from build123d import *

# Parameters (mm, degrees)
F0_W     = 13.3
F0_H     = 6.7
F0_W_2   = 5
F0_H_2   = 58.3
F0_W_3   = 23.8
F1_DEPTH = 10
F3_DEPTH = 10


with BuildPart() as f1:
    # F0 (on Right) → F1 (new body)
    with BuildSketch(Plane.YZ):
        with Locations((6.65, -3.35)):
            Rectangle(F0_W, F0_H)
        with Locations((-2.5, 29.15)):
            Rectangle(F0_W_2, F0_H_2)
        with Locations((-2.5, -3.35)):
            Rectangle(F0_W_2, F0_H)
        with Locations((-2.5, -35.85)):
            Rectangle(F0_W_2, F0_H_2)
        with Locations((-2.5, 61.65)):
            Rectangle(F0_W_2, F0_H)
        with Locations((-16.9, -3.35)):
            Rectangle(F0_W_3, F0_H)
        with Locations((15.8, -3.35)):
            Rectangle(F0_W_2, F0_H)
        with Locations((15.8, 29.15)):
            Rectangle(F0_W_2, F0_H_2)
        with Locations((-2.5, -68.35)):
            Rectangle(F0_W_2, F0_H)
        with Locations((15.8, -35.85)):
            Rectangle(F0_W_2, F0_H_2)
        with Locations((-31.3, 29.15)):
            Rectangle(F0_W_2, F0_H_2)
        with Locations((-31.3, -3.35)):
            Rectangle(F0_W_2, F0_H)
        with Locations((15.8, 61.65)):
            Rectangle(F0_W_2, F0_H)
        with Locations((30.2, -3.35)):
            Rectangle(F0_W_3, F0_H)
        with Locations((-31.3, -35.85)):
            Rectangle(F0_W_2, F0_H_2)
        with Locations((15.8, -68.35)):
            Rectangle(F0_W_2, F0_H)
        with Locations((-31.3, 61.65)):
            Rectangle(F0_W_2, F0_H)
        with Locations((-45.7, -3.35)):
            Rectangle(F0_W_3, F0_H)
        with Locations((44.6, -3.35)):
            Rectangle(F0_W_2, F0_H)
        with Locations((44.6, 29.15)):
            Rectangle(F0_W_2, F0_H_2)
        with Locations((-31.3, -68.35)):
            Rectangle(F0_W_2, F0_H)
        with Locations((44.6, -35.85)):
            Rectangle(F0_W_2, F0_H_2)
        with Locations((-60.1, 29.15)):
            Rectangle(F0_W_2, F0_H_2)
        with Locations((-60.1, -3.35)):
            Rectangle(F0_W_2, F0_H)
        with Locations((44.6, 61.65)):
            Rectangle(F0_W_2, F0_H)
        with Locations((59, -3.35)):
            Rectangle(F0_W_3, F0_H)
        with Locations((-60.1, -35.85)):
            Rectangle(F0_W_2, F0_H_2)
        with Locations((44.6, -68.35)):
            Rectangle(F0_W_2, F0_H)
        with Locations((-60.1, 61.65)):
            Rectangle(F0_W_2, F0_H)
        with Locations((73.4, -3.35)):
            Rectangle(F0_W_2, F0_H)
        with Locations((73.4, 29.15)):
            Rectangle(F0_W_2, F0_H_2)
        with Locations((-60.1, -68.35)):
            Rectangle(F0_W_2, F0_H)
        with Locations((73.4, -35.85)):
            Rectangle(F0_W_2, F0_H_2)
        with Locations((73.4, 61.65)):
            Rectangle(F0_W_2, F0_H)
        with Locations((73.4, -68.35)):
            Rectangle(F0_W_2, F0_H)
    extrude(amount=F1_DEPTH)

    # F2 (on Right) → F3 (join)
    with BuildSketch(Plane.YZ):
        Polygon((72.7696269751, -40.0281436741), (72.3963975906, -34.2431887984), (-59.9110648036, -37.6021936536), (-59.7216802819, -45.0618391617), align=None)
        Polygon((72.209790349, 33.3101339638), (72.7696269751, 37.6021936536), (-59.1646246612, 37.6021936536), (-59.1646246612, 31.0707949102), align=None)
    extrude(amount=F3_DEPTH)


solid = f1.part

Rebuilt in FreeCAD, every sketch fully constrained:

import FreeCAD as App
import Part
import Sketcher
from FreeCAD import Vector

doc = App.newDocument("Part")
body = doc.addObject("PartDesign::Body", "Body")

# Sketch on YZ plane
sketch1 = body.newObject("Sketcher::SketchObject", "Sketch")
sketch1.AttachmentSupport = (doc.getObject("YZ_Plane"), [""])
sketch1.MapMode = "FlatFace"
sketch1.addGeometry(Part.LineSegment(Vector(0, 0, 0), Vector(0, 65, 0)), False)
sketch1.addGeometry(Part.LineSegment(Vector(0, 65, 0), Vector(-5, 65, 0)), False)
sketch1.addGeometry(Part.LineSegment(Vector(-5, 65, 0), Vector(-5, 0, 0)), False)
sketch1.addGeometry(Part.LineSegment(Vector(-5, 0, 0), Vector(-28.8, 0, 0)), False)
sketch1.addGeometry(Part.LineSegment(Vector(-28.8, 0, 0), Vector(-28.8, 65, 0)), False)
sketch1.addGeometry(Part.LineSegment(Vector(-28.8, 65, 0), Vector(-33.8, 65, 0)), False)
sketch1.addGeometry(Part.LineSegment(Vector(-33.8, 65, 0), Vector(-33.8, 0, 0)), False)
sketch1.addGeometry(Part.LineSegment(Vector(-33.8, 0, 0), Vector(-57.6, 0, 0)), False)
sketch1.addGeometry(Part.LineSegment(Vector(-57.6, 0, 0), Vector(-57.6, 65, 0)), False)
sketch1.addGeometry(Part.LineSegment(Vector(-57.6, 65, 0), Vector(-62.6, 65, 0)), False)
sketch1.addGeometry(Part.LineSegment(Vector(-62.6, 65, 0), Vector(-62.6, -71.7, 0)), False)
sketch1.addGeometry(Part.LineSegment(Vector(-62.6, -71.7, 0), Vector(-57.6, -71.7, 0)), False)
sketch1.addGeometry(Part.LineSegment(Vector(-57.6, -71.7, 0), Vector(-57.6, -6.7, 0)), False)
sketch1.addGeometry(Part.LineSegment(Vector(-57.6, -6.7, 0), Vector(-33.8, -6.7, 0)), False)
sketch1.addGeometry(Part.LineSegment(Vector(-33.8, -6.7, 0), Vector(-33.8, -71.7, 0)), False)
sketch1.addGeometry(Part.LineSegment(Vector(-33.8, -71.7, 0), Vector(-28.8, -71.7, 0)), False)
sketch1.addGeometry(Part.LineSegment(Vector(-28.8, -71.7, 0), Vector(-28.8, -6.7, 0)), False)
sketch1.addGeometry(Part.LineSegment(Vector(-28.8, -6.7, 0), Vector(-5, -6.7, 0)), False)
sketch1.addGeometry(Part.LineSegment(Vector(-5, -6.7, 0), Vector(-5, -71.7, 0)), False)
sketch1.addGeometry(Part.LineSegment(Vector(-5, -71.7, 0), Vector(0, -71.7, 0)), False)
sketch1.addGeometry(Part.LineSegment(Vector(0, -71.7, 0), Vector(0, -6.7, 0)), False)
sketch1.addGeometry(Part.LineSegment(Vector(0, -6.7, 0), Vector(13.3, -6.7, 0)), False)
sketch1.addGeometry(Part.LineSegment(Vector(13.3, -6.7, 0), Vector(13.3, -71.7, 0)), False)
sketch1.addGeometry(Part.LineSegment(Vector(13.3, -71.7, 0), Vector(18.3, -71.7, 0)), False)
sketch1.addGeometry(Part.LineSegment(Vector(18.3, -71.7, 0), Vector(18.3, -6.7, 0)), False)
sketch1.addGeometry(Part.LineSegment(Vector(18.3, -6.7, 0), Vector(42.1, -6.7, 0)), False)
sketch1.addGeometry(Part.LineSegment(Vector(42.1, -6.7, 0), Vector(42.1, -71.7, 0)), False)
sketch1.addGeometry(Part.LineSegment(Vector(42.1, -71.7, 0), Vector(47.1, -71.7, 0)), False)
sketch1.addGeometry(Part.LineSegment(Vector(47.1, -71.7, 0), Vector(47.1, -6.7, 0)), False)
sketch1.addGeometry(Part.LineSegment(Vector(47.1, -6.7, 0), Vector(70.9, -6.7, 0)), False)
sketch1.addGeometry(Part.LineSegment(Vector(70.9, -6.7, 0), Vector(70.9, -71.7, 0)), False)
sketch1.addGeometry(Part.LineSegment(Vector(70.9, -71.7, 0), Vector(75.9, -71.7, 0)), False)
sketch1.addGeometry(Part.LineSegment(Vector(75.9, -71.7, 0), Vector(75.9, 65, 0)), False)
sketch1.addGeometry(Part.LineSegment(Vector(75.9, 65, 0), Vector(70.9, 65, 0)), False)
sketch1.addGeometry(Part.LineSegment(Vector(70.9, 65, 0), Vector(70.9, 0, 0)), False)
sketch1.addGeometry(Part.LineSegment(Vector(70.9, 0, 0), Vector(47.1, 0, 0)), False)
sketch1.addGeometry(Part.LineSegment(Vector(47.1, 0, 0), Vector(47.1, 65, 0)), False)
sketch1.addGeometry(Part.LineSegment(Vector(47.1, 65, 0), Vector(42.1, 65, 0)), False)
sketch1.addGeometry(Part.LineSegment(Vector(42.1, 65, 0), Vector(42.1, 0, 0)), False)
sketch1.addGeometry(Part.LineSegment(Vector(42.1, 0, 0), Vector(18.3, 0, 0)), False)
sketch1.addGeometry(Part.LineSegment(Vector(18.3, 0, 0), Vector(18.3, 65, 0)), False)
sketch1.addGeometry(Part.LineSegment(Vector(18.3, 65, 0), Vector(13.3, 65, 0)), False)
sketch1.addGeometry(Part.LineSegment(Vector(13.3, 65, 0), Vector(13.3, 0, 0)), False)
sketch1.addGeometry(Part.LineSegment(Vector(13.3, 0, 0), Vector(0, 0, 0)), False)
sketch1.addConstraint(Sketcher.Constraint("Coincident", 0, 2, 1, 1))
sketch1.addConstraint(Sketcher.Constraint("Coincident", 1, 2, 2, 1))
sketch1.addConstraint(Sketcher.Constraint("Coincident", 2, 2, 3, 1))
sketch1.addConstraint(Sketcher.Constraint("Coincident", 3, 2, 4, 1))
sketch1.addConstraint(Sketcher.Constraint("Coincident", 4, 2, 5, 1))
sketch1.addConstraint(Sketcher.Constraint("Coincident", 5, 2, 6, 1))
sketch1.addConstraint(Sketcher.Constraint("Coincident", 6, 2, 7, 1))
sketch1.addConstraint(Sketcher.Constraint("Coincident", 7, 2, 8, 1))
sketch1.addConstraint(Sketcher.Constraint("Coincident", 8, 2, 9, 1))
sketch1.addConstraint(Sketcher.Constraint("Coincident", 9, 2, 10, 1))
sketch1.addConstraint(Sketcher.Constraint("Coincident", 10, 2, 11, 1))
sketch1.addConstraint(Sketcher.Constraint("Coincident", 11, 2, 12, 1))
sketch1.addConstraint(Sketcher.Constraint("Coincident", 12, 2, 13, 1))
sketch1.addConstraint(Sketcher.Constraint("Coincident", 13, 2, 14, 1))
sketch1.addConstraint(Sketcher.Constraint("Coincident", 14, 2, 15, 1))
sketch1.addConstraint(Sketcher.Constraint("Coincident", 15, 2, 16, 1))
sketch1.addConstraint(Sketcher.Constraint("Coincident", 16, 2, 17, 1))
sketch1.addConstraint(Sketcher.Constraint("Coincident", 17, 2, 18, 1))
sketch1.addConstraint(Sketcher.Constraint("Coincident", 18, 2, 19, 1))
sketch1.addConstraint(Sketcher.Constraint("Coincident", 19, 2, 20, 1))
sketch1.addConstraint(Sketcher.Constraint("Coincident", 20, 2, 21, 1))
sketch1.addConstraint(Sketcher.Constraint("Coincident", 21, 2, 22, 1))
sketch1.addConstraint(Sketcher.Constraint("Coincident", 22, 2, 23, 1))
sketch1.addConstraint(Sketcher.Constraint("Coincident", 23, 2, 24, 1))
sketch1.addConstraint(Sketcher.Constraint("Coincident", 24, 2, 25, 1))
sketch1.addConstraint(Sketcher.Constraint("Coincident", 25, 2, 26, 1))
sketch1.addConstraint(Sketcher.Constraint("Coincident", 26, 2, 27, 1))
sketch1.addConstraint(Sketcher.Constraint("Coincident", 27, 2, 28, 1))
sketch1.addConstraint(Sketcher.Constraint("Coincident", 28, 2, 29, 1))
sketch1.addConstraint(Sketcher.Constraint("Coincident", 29, 2, 30, 1))
sketch1.addConstraint(Sketcher.Constraint("Coincident", 30, 2, 31, 1))
sketch1.addConstraint(Sketcher.Constraint("Coincident", 31, 2, 32, 1))
sketch1.addConstraint(Sketcher.Constraint("Coincident", 32, 2, 33, 1))
sketch1.addConstraint(Sketcher.Constraint("Coincident", 33, 2, 34, 1))
sketch1.addConstraint(Sketcher.Constraint("Coincident", 34, 2, 35, 1))
sketch1.addConstraint(Sketcher.Constraint("Coincident", 35, 2, 36, 1))
sketch1.addConstraint(Sketcher.Constraint("Coincident", 36, 2, 37, 1))
sketch1.addConstraint(Sketcher.Constraint("Coincident", 37, 2, 38, 1))
sketch1.addConstraint(Sketcher.Constraint("Coincident", 38, 2, 39, 1))
sketch1.addConstraint(Sketcher.Constraint("Coincident", 39, 2, 40, 1))
sketch1.addConstraint(Sketcher.Constraint("Coincident", 40, 2, 41, 1))
sketch1.addConstraint(Sketcher.Constraint("Coincident", 41, 2, 42, 1))
sketch1.addConstraint(Sketcher.Constraint("Coincident", 42, 2, 43, 1))
sketch1.addConstraint(Sketcher.Constraint("Coincident", 43, 2, 0, 1))
sketch1.addConstraint(Sketcher.Constraint("Vertical", 0))
sketch1.addConstraint(Sketcher.Constraint("Horizontal", 1))
sketch1.addConstraint(Sketcher.Constraint("Vertical", 2))
sketch1.addConstraint(Sketcher.Constraint("Horizontal", 3))
sketch1.addConstraint(Sketcher.Constraint("Vertical", 4))
sketch1.addConstraint(Sketcher.Constraint("Horizontal", 5))
sketch1.addConstraint(Sketcher.Constraint("Vertical", 6))
sketch1.addConstraint(Sketcher.Constraint("Horizontal", 7))
sketch1.addConstraint(Sketcher.Constraint("Vertical", 8))
sketch1.addConstraint(Sketcher.Constraint("Horizontal", 9))
sketch1.addConstraint(Sketcher.Constraint("Vertical", 10))
sketch1.addConstraint(Sketcher.Constraint("Horizontal", 11))
sketch1.addConstraint(Sketcher.Constraint("Vertical", 12))
sketch1.addConstraint(Sketcher.Constraint("Horizontal", 13))
sketch1.addConstraint(Sketcher.Constraint("Vertical", 14))
sketch1.addConstraint(Sketcher.Constraint("Horizontal", 15))
sketch1.addConstraint(Sketcher.Constraint("Vertical", 16))
sketch1.addConstraint(Sketcher.Constraint("Horizontal", 17))
sketch1.addConstraint(Sketcher.Constraint("Vertical", 18))
sketch1.addConstraint(Sketcher.Constraint("Horizontal", 19))
sketch1.addConstraint(Sketcher.Constraint("Vertical", 20))
sketch1.addConstraint(Sketcher.Constraint("Horizontal", 21))
sketch1.addConstraint(Sketcher.Constraint("Vertical", 22))
sketch1.addConstraint(Sketcher.Constraint("Horizontal", 23))
sketch1.addConstraint(Sketcher.Constraint("Vertical", 24))
sketch1.addConstraint(Sketcher.Constraint("Horizontal", 25))
sketch1.addConstraint(Sketcher.Constraint("Vertical", 26))
sketch1.addConstraint(Sketcher.Constraint("Horizontal", 27))
sketch1.addConstraint(Sketcher.Constraint("Vertical", 28))
sketch1.addConstraint(Sketcher.Constraint("Horizontal", 29))
sketch1.addConstraint(Sketcher.Constraint("Vertical", 30))
sketch1.addConstraint(Sketcher.Constraint("Horizontal", 31))
sketch1.addConstraint(Sketcher.Constraint("Vertical", 32))
sketch1.addConstraint(Sketcher.Constraint("Horizontal", 33))
sketch1.addConstraint(Sketcher.Constraint("Vertical", 34))
sketch1.addConstraint(Sketcher.Constraint("Horizontal", 35))
sketch1.addConstraint(Sketcher.Constraint("Vertical", 36))
sketch1.addConstraint(Sketcher.Constraint("Horizontal", 37))
sketch1.addConstraint(Sketcher.Constraint("Vertical", 38))
sketch1.addConstraint(Sketcher.Constraint("Horizontal", 39))
sketch1.addConstraint(Sketcher.Constraint("Vertical", 40))
sketch1.addConstraint(Sketcher.Constraint("Horizontal", 41))
sketch1.addConstraint(Sketcher.Constraint("Vertical", 42))
sketch1.addConstraint(Sketcher.Constraint("Horizontal", 43))
sketch1.addConstraint(Sketcher.Constraint("Coincident", 43, 2, -1, 1))
sketch1.addConstraint(Sketcher.Constraint("PointOnObject", 2, 2, -1))
sketch1.addConstraint(Sketcher.Constraint("PointOnObject", 6, 2, -1))
sketch1.addConstraint(Sketcher.Constraint("PointOnObject", 19, 2, -2))
sketch1.addConstraint(Sketcher.Constraint("PointOnObject", 34, 2, -1))
sketch1.addConstraint(Sketcher.Constraint("PointOnObject", 38, 2, -1))
sketch1.addConstraint(Sketcher.Constraint("Horizontal", 1, 2, 4, 2))
sketch1.addConstraint(Sketcher.Constraint("Horizontal", 5, 2, 8, 2))
sketch1.addConstraint(Sketcher.Constraint("Horizontal", 11, 2, 14, 2))
sketch1.addConstraint(Sketcher.Constraint("Horizontal", 13, 2, 16, 2))
sketch1.addConstraint(Sketcher.Constraint("Horizontal", 15, 2, 18, 2))
sketch1.addConstraint(Sketcher.Constraint("Horizontal", 17, 2, 20, 2))
sketch1.addConstraint(Sketcher.Constraint("Horizontal", 19, 2, 22, 2))
sketch1.addConstraint(Sketcher.Constraint("Horizontal", 21, 2, 24, 2))
sketch1.addConstraint(Sketcher.Constraint("Horizontal", 23, 2, 26, 2))
sketch1.addConstraint(Sketcher.Constraint("Horizontal", 25, 2, 28, 2))
sketch1.addConstraint(Sketcher.Constraint("Horizontal", 27, 2, 30, 2))
sketch1.addConstraint(Sketcher.Constraint("Horizontal", 9, 2, 32, 2))
sketch1.addConstraint(Sketcher.Constraint("Horizontal", 33, 2, 36, 2))
sketch1.addConstraint(Sketcher.Constraint("Horizontal", 37, 2, 40, 2))
sketch1.addConstraint(Sketcher.Constraint("Vertical", 8, 2, 11, 2))
sketch1.addConstraint(Sketcher.Constraint("Vertical", 6, 2, 13, 2))
sketch1.addConstraint(Sketcher.Constraint("Vertical", 4, 2, 15, 2))
sketch1.addConstraint(Sketcher.Constraint("Vertical", 2, 2, 17, 2))
sketch1.addConstraint(Sketcher.Constraint("Vertical", 30, 2, 33, 2))
sketch1.addConstraint(Sketcher.Constraint("Vertical", 28, 2, 35, 2))
sketch1.addConstraint(Sketcher.Constraint("Vertical", 26, 2, 37, 2))
sketch1.addConstraint(Sketcher.Constraint("Vertical", 24, 2, 39, 2))
sketch1.addConstraint(Sketcher.Constraint("Vertical", 22, 2, 41, 2))
sketch1.addConstraint(Sketcher.Constraint("Equal", 1, 5))
sketch1.addConstraint(Sketcher.Constraint("Equal", 3, 7))
sketch1.addConstraint(Sketcher.Constraint("Equal", 5, 9))
sketch1.addConstraint(Sketcher.Constraint("Equal", 19, 23))
sketch1.addConstraint(Sketcher.Constraint("Equal", 17, 25))
sketch1.addConstraint(Sketcher.Constraint("Equal", 23, 27))
sketch1.addConstraint(Sketcher.Constraint("Equal", 25, 29))
sketch1.addConstraint(Sketcher.Constraint("Equal", 27, 31))
sketch1.addConstraint(Sketcher.Constraint("Equal", 8, 12))
sketch1.addConstraint(Sketcher.Constraint("DistanceX", 1, 2, 1, 1, 5.0))
sketch1.addConstraint(Sketcher.Constraint("DistanceY", 0, 1, 0, 2, 65.0))
sketch1.addConstraint(Sketcher.Constraint("DistanceX", 3, 2, 3, 1, 23.8))
sketch1.addConstraint(Sketcher.Constraint("DistanceX", 21, 1, 21, 2, 13.3))
sketch1.addConstraint(Sketcher.Constraint("DistanceY", 10, 2, 10, 1, 136.7))
pad1 = body.newObject("PartDesign::Pad", "Pad")
pad1.Profile = sketch1
pad1.Length = 10

# Sketch on YZ plane
sketch2 = body.newObject("Sketcher::SketchObject", "Sketch001")
sketch2.AttachmentSupport = (doc.getObject("YZ_Plane"), [""])
sketch2.MapMode = "FlatFace"
sketch2.addGeometry(Part.LineSegment(Vector(72.769627, -40.028144, 0), Vector(72.396398, -34.243189, 0)), False)
sketch2.addGeometry(Part.LineSegment(Vector(72.396398, -34.243189, 0), Vector(-59.911065, -37.602194, 0)), False)
sketch2.addGeometry(Part.LineSegment(Vector(-59.911065, -37.602194, 0), Vector(-59.72168, -45.061839, 0)), False)
sketch2.addGeometry(Part.LineSegment(Vector(-59.72168, -45.061839, 0), Vector(72.769627, -40.028144, 0)), False)
sketch2.addGeometry(Part.LineSegment(Vector(72.20979, 33.310134, 0), Vector(72.769627, 37.602194, 0)), False)
sketch2.addGeometry(Part.LineSegment(Vector(72.769627, 37.602194, 0), Vector(-59.164625, 37.602194, 0)), False)
sketch2.addGeometry(Part.LineSegment(Vector(-59.164625, 37.602194, 0), Vector(-59.164625, 31.070795, 0)), False)
sketch2.addGeometry(Part.LineSegment(Vector(-59.164625, 31.070795, 0), Vector(72.20979, 33.310134, 0)), False)
sketch2.addConstraint(Sketcher.Constraint("Coincident", 0, 2, 1, 1))
sketch2.addConstraint(Sketcher.Constraint("Coincident", 1, 2, 2, 1))
sketch2.addConstraint(Sketcher.Constraint("Coincident", 2, 2, 3, 1))
sketch2.addConstraint(Sketcher.Constraint("Coincident", 3, 2, 0, 1))
sketch2.addConstraint(Sketcher.Constraint("Coincident", 4, 2, 5, 1))
sketch2.addConstraint(Sketcher.Constraint("Coincident", 5, 2, 6, 1))
sketch2.addConstraint(Sketcher.Constraint("Coincident", 6, 2, 7, 1))
sketch2.addConstraint(Sketcher.Constraint("Coincident", 7, 2, 4, 1))
sketch2.addConstraint(Sketcher.Constraint("Horizontal", 5))
sketch2.addConstraint(Sketcher.Constraint("Vertical", 6))
sketch2.addConstraint(Sketcher.Constraint("DistanceY", 6, 2, 6, 1, 6.531399))
sketch2.addConstraint(Sketcher.Constraint("Distance", 7, 131.393499))
sketch2.addConstraint(Sketcher.Constraint("DistanceX", 5, 2, 5, 1, 131.934252))
sketch2.addConstraint(Sketcher.Constraint("Distance", 2, 7.462049))
sketch2.addConstraint(Sketcher.Constraint("DistanceY", 0, 2, -1, 1, 34.243189))
sketch2.addConstraint(Sketcher.Constraint("DistanceX", 2, 2, -1, 1, 59.72168))
sketch2.addConstraint(Sketcher.Constraint("DistanceY", 2, 2, -1, 1, 45.061839))
sketch2.addConstraint(Sketcher.Constraint("DistanceX", -1, 1, 7, 2, 72.20979))
sketch2.addConstraint(Sketcher.Constraint("DistanceX", 0, 2, 3, 2, 0.373229))
sketch2.addConstraint(Sketcher.Constraint("DistanceX", 1, 2, 3, 2, 132.680692))
sketch2.addConstraint(Sketcher.Constraint("DistanceY", 3, 2, 1, 2, 2.42595))
sketch2.addConstraint(Sketcher.Constraint("DistanceX", 0, 2, 4, 2, 0.373229))
sketch2.addConstraint(Sketcher.Constraint("DistanceY", 1, 2, 6, 2, 68.672989))
sketch2.addConstraint(Sketcher.Constraint("DistanceY", 7, 2, 4, 2, 4.29206))
pad2 = body.newObject("PartDesign::Pad", "Pad001")
pad2.Profile = sketch2
pad2.Length = 10

doc.recompute()
